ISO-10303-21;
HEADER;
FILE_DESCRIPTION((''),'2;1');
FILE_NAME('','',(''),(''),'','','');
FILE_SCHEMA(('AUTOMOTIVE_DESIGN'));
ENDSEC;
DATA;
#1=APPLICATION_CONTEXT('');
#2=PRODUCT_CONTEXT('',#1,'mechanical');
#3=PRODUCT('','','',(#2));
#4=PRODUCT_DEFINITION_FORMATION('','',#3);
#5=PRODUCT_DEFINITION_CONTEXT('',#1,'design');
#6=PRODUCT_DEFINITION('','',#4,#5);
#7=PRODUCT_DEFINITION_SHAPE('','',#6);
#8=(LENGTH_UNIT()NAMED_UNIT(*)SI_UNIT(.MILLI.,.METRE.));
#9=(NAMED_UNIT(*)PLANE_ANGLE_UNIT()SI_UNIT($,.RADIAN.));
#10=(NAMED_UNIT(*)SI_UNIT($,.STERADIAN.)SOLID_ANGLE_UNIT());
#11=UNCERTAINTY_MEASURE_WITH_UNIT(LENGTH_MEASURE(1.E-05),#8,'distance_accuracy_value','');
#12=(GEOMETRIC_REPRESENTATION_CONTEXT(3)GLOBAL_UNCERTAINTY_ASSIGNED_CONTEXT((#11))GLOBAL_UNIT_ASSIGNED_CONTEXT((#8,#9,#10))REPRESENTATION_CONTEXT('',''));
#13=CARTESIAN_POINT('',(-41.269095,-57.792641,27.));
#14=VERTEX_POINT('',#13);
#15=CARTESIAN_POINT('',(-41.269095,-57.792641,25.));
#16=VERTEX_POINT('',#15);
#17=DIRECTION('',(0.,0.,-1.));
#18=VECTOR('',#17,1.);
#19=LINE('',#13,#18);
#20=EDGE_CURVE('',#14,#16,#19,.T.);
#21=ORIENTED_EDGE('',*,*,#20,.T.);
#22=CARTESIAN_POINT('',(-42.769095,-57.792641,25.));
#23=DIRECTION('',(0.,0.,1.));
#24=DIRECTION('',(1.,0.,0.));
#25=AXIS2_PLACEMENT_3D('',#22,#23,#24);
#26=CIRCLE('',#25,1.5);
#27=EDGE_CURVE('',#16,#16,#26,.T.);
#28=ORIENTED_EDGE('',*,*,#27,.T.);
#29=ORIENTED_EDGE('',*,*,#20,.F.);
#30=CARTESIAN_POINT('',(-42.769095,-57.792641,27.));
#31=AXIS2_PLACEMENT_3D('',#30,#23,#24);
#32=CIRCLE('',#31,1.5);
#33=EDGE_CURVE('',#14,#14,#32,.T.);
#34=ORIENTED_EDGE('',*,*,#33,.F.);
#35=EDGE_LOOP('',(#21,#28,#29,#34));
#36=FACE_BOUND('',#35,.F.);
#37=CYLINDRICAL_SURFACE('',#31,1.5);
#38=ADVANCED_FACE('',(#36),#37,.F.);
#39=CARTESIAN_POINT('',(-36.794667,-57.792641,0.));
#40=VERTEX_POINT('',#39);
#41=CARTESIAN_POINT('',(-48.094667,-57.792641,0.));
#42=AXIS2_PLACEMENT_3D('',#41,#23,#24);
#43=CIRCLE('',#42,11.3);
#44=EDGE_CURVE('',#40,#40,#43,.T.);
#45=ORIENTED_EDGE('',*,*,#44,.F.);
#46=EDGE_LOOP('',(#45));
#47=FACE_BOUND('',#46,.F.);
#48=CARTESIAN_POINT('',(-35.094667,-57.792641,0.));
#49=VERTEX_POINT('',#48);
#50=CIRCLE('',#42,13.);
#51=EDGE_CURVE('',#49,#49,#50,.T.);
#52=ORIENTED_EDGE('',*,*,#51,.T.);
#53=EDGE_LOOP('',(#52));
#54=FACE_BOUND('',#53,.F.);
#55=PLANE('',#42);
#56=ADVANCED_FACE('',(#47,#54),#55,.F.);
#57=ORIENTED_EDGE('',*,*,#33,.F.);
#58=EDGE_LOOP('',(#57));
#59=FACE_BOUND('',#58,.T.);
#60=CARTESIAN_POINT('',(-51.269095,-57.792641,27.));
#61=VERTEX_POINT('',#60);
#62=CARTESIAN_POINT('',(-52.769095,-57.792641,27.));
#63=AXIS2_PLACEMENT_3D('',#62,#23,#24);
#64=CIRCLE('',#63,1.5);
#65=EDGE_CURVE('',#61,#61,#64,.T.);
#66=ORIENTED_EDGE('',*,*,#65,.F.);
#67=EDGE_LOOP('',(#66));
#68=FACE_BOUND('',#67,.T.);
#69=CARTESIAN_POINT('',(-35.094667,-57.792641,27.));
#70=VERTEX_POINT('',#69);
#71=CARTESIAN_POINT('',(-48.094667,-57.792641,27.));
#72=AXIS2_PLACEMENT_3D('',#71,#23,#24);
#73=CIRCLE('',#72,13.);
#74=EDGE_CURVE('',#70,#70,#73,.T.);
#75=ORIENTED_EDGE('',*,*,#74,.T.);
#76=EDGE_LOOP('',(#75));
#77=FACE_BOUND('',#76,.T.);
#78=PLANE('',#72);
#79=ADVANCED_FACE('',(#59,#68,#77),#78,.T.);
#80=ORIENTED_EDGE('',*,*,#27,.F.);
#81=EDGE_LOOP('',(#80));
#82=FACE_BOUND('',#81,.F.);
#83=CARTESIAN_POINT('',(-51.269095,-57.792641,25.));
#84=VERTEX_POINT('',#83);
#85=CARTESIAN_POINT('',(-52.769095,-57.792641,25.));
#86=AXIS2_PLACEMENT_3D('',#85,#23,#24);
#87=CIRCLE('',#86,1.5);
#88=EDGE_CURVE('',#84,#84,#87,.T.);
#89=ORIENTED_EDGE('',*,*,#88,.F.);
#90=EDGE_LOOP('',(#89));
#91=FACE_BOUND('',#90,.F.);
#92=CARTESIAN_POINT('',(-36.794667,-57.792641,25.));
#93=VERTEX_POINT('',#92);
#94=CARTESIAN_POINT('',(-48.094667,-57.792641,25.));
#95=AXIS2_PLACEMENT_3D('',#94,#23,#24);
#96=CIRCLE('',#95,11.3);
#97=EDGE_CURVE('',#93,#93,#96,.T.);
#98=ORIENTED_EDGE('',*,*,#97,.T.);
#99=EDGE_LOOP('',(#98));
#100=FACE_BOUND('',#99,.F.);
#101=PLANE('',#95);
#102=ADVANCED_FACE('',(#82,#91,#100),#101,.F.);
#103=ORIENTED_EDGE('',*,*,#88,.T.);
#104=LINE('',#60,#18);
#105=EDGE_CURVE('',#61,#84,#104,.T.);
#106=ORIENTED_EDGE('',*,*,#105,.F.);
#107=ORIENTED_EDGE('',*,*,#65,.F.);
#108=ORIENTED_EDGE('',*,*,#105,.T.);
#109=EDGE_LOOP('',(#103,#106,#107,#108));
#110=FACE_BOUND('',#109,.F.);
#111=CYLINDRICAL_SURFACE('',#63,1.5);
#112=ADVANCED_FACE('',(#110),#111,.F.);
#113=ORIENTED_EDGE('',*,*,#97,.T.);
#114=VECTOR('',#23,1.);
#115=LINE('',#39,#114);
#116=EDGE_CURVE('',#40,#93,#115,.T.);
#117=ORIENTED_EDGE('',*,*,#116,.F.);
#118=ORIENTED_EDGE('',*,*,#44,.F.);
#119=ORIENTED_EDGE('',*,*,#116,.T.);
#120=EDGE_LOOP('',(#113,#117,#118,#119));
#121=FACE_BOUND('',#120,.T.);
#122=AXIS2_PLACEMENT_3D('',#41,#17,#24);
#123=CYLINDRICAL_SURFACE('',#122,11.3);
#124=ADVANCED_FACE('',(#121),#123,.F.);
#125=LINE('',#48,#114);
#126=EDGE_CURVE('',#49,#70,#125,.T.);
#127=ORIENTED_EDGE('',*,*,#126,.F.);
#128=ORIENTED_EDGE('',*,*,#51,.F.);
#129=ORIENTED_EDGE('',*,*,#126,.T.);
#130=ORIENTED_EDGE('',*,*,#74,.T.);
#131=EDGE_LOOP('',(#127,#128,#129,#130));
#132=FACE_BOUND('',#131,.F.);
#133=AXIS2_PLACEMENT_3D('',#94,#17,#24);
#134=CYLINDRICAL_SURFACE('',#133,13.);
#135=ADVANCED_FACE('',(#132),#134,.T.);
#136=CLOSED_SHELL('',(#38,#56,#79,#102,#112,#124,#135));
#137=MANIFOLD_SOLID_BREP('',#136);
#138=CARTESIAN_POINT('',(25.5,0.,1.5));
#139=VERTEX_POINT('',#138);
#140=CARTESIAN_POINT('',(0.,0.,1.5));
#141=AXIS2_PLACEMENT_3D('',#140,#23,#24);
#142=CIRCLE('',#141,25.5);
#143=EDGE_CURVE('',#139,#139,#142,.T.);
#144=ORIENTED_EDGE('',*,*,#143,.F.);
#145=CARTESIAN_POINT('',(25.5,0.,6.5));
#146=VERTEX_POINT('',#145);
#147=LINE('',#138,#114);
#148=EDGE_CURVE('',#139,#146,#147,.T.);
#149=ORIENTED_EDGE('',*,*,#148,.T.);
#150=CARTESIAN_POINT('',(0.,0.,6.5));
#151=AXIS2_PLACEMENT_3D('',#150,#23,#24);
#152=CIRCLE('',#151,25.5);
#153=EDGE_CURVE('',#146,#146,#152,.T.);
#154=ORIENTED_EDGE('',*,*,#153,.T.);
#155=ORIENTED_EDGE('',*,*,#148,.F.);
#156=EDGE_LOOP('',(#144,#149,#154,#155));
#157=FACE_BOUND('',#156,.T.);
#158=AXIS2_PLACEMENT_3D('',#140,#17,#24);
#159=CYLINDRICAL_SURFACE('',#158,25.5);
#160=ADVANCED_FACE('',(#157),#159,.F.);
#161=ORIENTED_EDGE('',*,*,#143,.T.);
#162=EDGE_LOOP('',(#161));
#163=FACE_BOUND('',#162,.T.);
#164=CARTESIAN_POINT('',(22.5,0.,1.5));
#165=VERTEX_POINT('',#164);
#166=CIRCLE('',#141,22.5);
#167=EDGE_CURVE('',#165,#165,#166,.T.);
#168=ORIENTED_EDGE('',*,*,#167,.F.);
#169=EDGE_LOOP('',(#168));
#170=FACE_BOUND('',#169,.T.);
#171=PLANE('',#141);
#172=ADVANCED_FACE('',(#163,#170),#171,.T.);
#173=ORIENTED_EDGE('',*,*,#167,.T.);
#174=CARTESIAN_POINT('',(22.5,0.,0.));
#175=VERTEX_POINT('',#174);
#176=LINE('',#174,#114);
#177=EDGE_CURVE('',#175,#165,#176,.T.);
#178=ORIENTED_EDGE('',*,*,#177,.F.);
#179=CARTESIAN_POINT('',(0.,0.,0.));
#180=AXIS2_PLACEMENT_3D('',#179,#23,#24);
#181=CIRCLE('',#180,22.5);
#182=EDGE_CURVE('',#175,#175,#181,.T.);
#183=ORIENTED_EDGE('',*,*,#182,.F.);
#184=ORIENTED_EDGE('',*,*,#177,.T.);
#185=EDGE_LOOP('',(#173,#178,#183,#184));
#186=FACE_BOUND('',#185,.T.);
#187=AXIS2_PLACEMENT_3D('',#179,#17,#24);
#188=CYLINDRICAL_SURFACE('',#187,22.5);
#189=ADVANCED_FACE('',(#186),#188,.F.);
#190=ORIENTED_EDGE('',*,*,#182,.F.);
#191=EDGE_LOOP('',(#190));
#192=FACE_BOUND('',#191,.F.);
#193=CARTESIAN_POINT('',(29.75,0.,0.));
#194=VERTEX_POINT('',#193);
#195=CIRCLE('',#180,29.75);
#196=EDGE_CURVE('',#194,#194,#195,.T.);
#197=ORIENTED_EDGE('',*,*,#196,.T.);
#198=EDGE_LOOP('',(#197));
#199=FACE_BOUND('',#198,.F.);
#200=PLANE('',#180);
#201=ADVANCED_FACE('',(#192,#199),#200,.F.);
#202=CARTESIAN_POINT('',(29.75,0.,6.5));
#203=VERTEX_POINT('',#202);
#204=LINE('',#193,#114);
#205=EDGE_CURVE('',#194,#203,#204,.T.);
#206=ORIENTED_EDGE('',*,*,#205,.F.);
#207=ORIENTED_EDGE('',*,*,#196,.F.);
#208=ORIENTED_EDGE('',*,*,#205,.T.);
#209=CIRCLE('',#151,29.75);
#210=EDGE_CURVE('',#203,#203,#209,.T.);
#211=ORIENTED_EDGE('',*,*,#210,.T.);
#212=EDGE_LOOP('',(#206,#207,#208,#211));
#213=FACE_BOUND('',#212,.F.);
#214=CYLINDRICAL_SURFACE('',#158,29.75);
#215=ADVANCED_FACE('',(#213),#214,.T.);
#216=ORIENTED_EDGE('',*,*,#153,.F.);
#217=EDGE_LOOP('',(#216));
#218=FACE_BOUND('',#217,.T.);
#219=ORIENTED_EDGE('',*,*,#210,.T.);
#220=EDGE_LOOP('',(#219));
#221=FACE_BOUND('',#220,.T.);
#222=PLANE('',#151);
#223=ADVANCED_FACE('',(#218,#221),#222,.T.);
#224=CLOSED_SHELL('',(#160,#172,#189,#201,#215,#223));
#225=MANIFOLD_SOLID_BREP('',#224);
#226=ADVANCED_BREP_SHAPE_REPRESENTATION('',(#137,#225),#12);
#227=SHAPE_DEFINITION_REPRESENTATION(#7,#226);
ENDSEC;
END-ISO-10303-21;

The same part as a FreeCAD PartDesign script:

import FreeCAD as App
import Part
import Sketcher

doc = App.newDocument("Part")
body = doc.addObject("PartDesign::Body", "Body")

# Sketch on XY plane
sketch1 = doc.addObject("Sketcher::SketchObject", "Sketch")
body.addObject(sketch1)
sketch1.AttachmentSupport = (doc.XY_Plane, [""])
sketch1.MapMode = "FlatFace"
sketch1.addGeometry([
    Part.Circle(App.Vector(0, 0, 0), App.Vector(0, 0, 1), 30),
    Part.Circle(App.Vector(0, 0, 0), App.Vector(0, 0, 1), 22),
], False)
sketch1.addConstraint([
    Sketcher.Constraint("Coincident", 0, 3, -1, 1),
    Sketcher.Constraint("Coincident", 1, 3, -1, 1),
    Sketcher.Constraint("Diameter", 1, 45.0),
    Sketcher.Constraint("Diameter", 0, 59.5),
])
pad1 = doc.addObject("PartDesign::Pad", "Pad")
body.addObject(pad1)
pad1.Profile = sketch1
pad1.Length = 1.5

# Sketch on XY plane
sketch2 = doc.addObject("Sketcher::SketchObject", "Sketch001")
body.addObject(sketch2)
sketch2.AttachmentSupport = (doc.XY_Plane, [""])
sketch2.MapMode = "FlatFace"
sketch2.AttachmentOffset = App.Placement(App.Vector(0, 0, 1.5), App.Rotation())
sketch2.addGeometry([
    Part.Circle(App.Vector(0, 0, 0), App.Vector(0, 0, 1), 30),
    Part.Circle(App.Vector(0, 0, 0), App.Vector(0, 0, 1), 26),
], False)
sketch2.addConstraint([
    Sketcher.Constraint("Coincident", 0, 3, -1, 1),
    Sketcher.Constraint("Coincident", 1, 3, -1, 1),
    Sketcher.Constraint("Diameter", 1, 51.0),
    Sketcher.Constraint("Diameter", 0, 59.5),
])
pad2 = doc.addObject("PartDesign::Pad", "Pad001")
body.addObject(pad2)
pad2.Profile = sketch2
pad2.Length = 5
body2 = doc.addObject("PartDesign::Body", "Body001")

# Sketch on XY plane
sketch3 = doc.addObject("Sketcher::SketchObject", "Sketch002")
body2.addObject(sketch3)
sketch3.AttachmentSupport = (doc.getObject("XY_Plane001"), [""])
sketch3.MapMode = "FlatFace"
sketch3.addGeometry([
    Part.Circle(App.Vector(-48, -58, 0), App.Vector(0, 0, 1), 13),
    Part.Circle(App.Vector(-48, -58, 0), App.Vector(0, 0, 1), 11),
], False)
sketch3.addConstraint([
    Sketcher.Constraint("Coincident", 1, 3, 0, 3),
    Sketcher.Constraint("Diameter", 0, 26.0),
    Sketcher.Constraint("Diameter", 1, 22.6),
    Sketcher.Constraint("DistanceY", 0, 3, -1, 1, 57.792641),
    Sketcher.Constraint("DistanceX", 0, 3, -1, 1, 48.094667),
])
pad3 = doc.addObject("PartDesign::Pad", "Pad002")
body2.addObject(pad3)
pad3.Profile = sketch3
pad3.Length = 25

# Sketch on XY plane
sketch4 = doc.addObject("Sketcher::SketchObject", "Sketch003")
body2.addObject(sketch4)
sketch4.AttachmentSupport = (doc.getObject("XY_Plane001"), [""])
sketch4.MapMode = "FlatFace"
sketch4.AttachmentOffset = App.Placement(App.Vector(0, 0, 25), App.Rotation())
sketch4.addGeometry(Part.Circle(App.Vector(-48, -58, 0), App.Vector(0, 0, 1), 13), False)
sketch4.addConstraint([
    Sketcher.Constraint("Diameter", 0, 26.0),
    Sketcher.Constraint("DistanceY", 0, 3, -1, 1, 57.792641),
    Sketcher.Constraint("DistanceX", 0, 3, -1, 1, 48.094667),
])
pad4 = doc.addObject("PartDesign::Pad", "Pad003")
body2.addObject(pad4)
pad4.Profile = sketch4
pad4.Length = 2

# Sketch on XY plane
sketch5 = doc.addObject("Sketcher::SketchObject", "Sketch004")
body2.addObject(sketch5)
sketch5.AttachmentSupport = (doc.getObject("XY_Plane001"), [""])
sketch5.MapMode = "FlatFace"
sketch5.AttachmentOffset = App.Placement(App.Vector(0, 0, 27), App.Rotation())
sketch5.addGeometry([
    Part.Circle(App.Vector(-42.8, -57.8, 0), App.Vector(0, 0, 1), 1.5),
    Part.Circle(App.Vector(-52.8, -57.8, 0), App.Vector(0, 0, 1), 1.5),
], False)
sketch5.addConstraint([
    Sketcher.Constraint("Equal", 0, 1),
    Sketcher.Constraint("Horizontal", 0, 3, 1, 3),
    Sketcher.Constraint("Diameter", 0, 3.0),
    Sketcher.Constraint("DistanceX", 1, 3, 0, 3, 10.0),
    Sketcher.Constraint("DistanceY", 0, 3, -1, 1, 57.792641),
    Sketcher.Constraint("DistanceX", 0, 3, -1, 1, 42.769095),
])
pocket1 = doc.addObject("PartDesign::Pocket", "Pocket")
body2.addObject(pocket1)
pocket1.Profile = sketch5
pocket1.Type = "ThroughAll"

doc.recompute()
